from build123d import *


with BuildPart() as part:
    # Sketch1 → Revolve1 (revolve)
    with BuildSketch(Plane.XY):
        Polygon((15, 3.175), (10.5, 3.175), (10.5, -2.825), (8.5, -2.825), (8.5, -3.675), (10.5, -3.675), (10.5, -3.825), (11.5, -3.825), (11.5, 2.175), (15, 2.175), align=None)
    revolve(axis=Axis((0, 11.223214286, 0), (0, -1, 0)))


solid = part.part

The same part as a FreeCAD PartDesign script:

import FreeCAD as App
import Part
import Sketcher

V = App.Vector
Q = App.Units.Quantity

doc = App.newDocument("Part")
body = doc.addObject("PartDesign::Body", "Body")

sketch1 = doc.addObject("Sketcher::SketchObject", "Sketch")
body.addObject(sketch1)
sketch1.AttachmentSupport = (doc.XY_Plane, [""])
sketch1.MapMode = "FlatFace"
sketch1.addGeometry([
    Part.LineSegment(V(15, 3.175, 0), V(10.5, 3.175, 0)),
    Part.LineSegment(V(10.5, 3.175, 0), V(10.5, -2.825, 0)),
    Part.LineSegment(V(10.5, -2.825, 0), V(8.5, -2.825, 0)),
    Part.LineSegment(V(8.5, -2.825, 0), V(8.5, -3.675, 0)),
    Part.LineSegment(V(8.5, -3.675, 0), V(10.5, -3.675, 0)),
    Part.LineSegment(V(10.5, -3.675, 0), V(10.5, -3.825, 0)),
    Part.LineSegment(V(10.5, -3.825, 0), V(11.5, -3.825, 0)),
    Part.LineSegment(V(11.5, -3.825, 0), V(11.5, 2.175, 0)),
    Part.LineSegment(V(11.5, 2.175, 0), V(15, 2.175, 0)),
    Part.LineSegment(V(15, 2.175, 0), V(15, 3.175, 0)),
], False)
sketch1.addConstraint([
    Sketcher.Constraint("Coincident", 0, 2, 1, 1),
    Sketcher.Constraint("Coincident", 1, 2, 2, 1),
    Sketcher.Constraint("Coincident", 2, 2, 3, 1),
    Sketcher.Constraint("Coincident", 3, 2, 4, 1),
    Sketcher.Constraint("Coincident", 4, 2, 5, 1),
    Sketcher.Constraint("Coincident", 5, 2, 6, 1),
    Sketcher.Constraint("Coincident", 6, 2, 7, 1),
    Sketcher.Constraint("Coincident", 7, 2, 8, 1),
    Sketcher.Constraint("Coincident", 8, 2, 9, 1),
    Sketcher.Constraint("Coincident", 9, 2, 0, 1),
    Sketcher.Constraint("Horizontal", 0),
    Sketcher.Constraint("Vertical", 1),
    Sketcher.Constraint("Horizontal", 2),
    Sketcher.Constraint("Vertical", 3),
    Sketcher.Constraint("Horizontal", 4),
    Sketcher.Constraint("Vertical", 5),
    Sketcher.Constraint("Horizontal", 6),
    Sketcher.Constraint("Vertical", 7),
    Sketcher.Constraint("Horizontal", 8),
    Sketcher.Constraint("Vertical", 9),
    Sketcher.Constraint("Vertical", 1, 2, 4, 2),
    Sketcher.Constraint("Equal", 1, 7),
    Sketcher.Constraint("Equal", 6, 9),
    Sketcher.Constraint("DistanceX", 2, 2, 2, 1, Q("2 mm")),
    Sketcher.Constraint("DistanceX", 6, 1, 6, 2, Q("1 mm")),
    Sketcher.Constraint("DistanceY", 1, 2, 1, 1, Q("6 mm")),
    Sketcher.Constraint("DistanceX", 0, 2, 0, 1, Q("4.5 mm")),
    Sketcher.Constraint("DistanceX", -1, 1, 8, 2, Q("15 mm")),
    Sketcher.Constraint("DistanceY", 3, 2, 3, 1, Q("0.85 mm")),
    Sketcher.Constraint("DistanceY", -1, 1, 0, 2, Q("3.175 mm")),
])
revolution = doc.addObject("PartDesign::Revolution", "Revolution")
body.addObject(revolution)
revolution.Profile = sketch1
revolution.ReferenceAxis = (sketch1, ["V_Axis"])
revolution.Angle = 360

doc.recompute()
